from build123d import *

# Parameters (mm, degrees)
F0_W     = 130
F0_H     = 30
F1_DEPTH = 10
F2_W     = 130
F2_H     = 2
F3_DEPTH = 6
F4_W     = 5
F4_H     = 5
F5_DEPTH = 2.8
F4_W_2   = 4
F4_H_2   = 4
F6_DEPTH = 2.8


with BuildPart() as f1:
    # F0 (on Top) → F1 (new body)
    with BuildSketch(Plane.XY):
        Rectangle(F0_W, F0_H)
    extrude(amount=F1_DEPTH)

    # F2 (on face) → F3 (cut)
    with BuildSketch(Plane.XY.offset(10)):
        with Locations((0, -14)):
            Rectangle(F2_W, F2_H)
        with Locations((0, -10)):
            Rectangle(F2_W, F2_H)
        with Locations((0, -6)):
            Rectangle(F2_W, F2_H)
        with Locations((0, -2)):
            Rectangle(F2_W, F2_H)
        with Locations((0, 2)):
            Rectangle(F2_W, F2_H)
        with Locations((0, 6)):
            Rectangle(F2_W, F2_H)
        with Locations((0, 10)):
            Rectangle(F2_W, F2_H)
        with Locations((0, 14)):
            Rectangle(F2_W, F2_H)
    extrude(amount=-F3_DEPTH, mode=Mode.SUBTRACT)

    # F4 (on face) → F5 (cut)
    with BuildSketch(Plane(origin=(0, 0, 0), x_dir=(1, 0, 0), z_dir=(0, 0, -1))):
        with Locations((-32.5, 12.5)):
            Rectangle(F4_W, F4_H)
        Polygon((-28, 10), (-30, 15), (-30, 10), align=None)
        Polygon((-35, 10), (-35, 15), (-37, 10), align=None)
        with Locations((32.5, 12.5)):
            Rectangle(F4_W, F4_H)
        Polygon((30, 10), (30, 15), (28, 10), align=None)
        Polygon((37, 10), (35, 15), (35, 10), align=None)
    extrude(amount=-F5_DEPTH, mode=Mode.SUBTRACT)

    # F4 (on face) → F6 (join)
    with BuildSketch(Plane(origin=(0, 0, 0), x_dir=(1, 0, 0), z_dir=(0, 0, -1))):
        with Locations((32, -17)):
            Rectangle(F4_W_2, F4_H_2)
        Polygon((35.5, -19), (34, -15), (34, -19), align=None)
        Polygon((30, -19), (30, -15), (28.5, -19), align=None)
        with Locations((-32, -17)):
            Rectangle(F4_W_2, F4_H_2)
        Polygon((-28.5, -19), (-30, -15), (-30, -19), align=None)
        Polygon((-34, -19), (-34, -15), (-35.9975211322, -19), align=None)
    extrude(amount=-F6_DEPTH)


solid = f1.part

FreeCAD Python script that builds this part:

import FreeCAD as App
import Part
import Sketcher

V = App.Vector
Q = App.Units.Quantity

doc = App.newDocument("Part")
body = doc.addObject("PartDesign::Body", "Body")

# Sketch on XY plane
sketch1 = body.newObject("Sketcher::SketchObject", "Sketch")
sketch1.AttachmentSupport = (doc.getObject("XY_Plane"), [""])
sketch1.MapMode = "FlatFace"
sketch1.addGeometry(Part.LineSegment(V(-65, 15, 0), V(-65, -15, 0)), False)
sketch1.addGeometry(Part.LineSegment(V(-65, -15, 0), V(65, -15, 0)), False)
sketch1.addGeometry(Part.LineSegment(V(65, -15, 0), V(65, 15, 0)), False)
sketch1.addGeometry(Part.LineSegment(V(65, 15, 0), V(-65, 15, 0)), False)
sketch1.addConstraint(Sketcher.Constraint("Coincident", 0, 2, 1, 1))
sketch1.addConstraint(Sketcher.Constraint("Coincident", 1, 2, 2, 1))
sketch1.addConstraint(Sketcher.Constraint("Coincident", 2, 2, 3, 1))
sketch1.addConstraint(Sketcher.Constraint("Coincident", 3, 2, 0, 1))
sketch1.addConstraint(Sketcher.Constraint("Vertical", 0))
sketch1.addConstraint(Sketcher.Constraint("Horizontal", 1))
sketch1.addConstraint(Sketcher.Constraint("Vertical", 2))
sketch1.addConstraint(Sketcher.Constraint("Horizontal", 3))
sketch1.addConstraint(Sketcher.Constraint("Symmetric", 0, 2, 2, 2, -1, 1))
sketch1.addConstraint(Sketcher.Constraint("DistanceX", 1, 1, 1, 2, Q("130 mm")))
sketch1.addConstraint(Sketcher.Constraint("DistanceY", 0, 2, 0, 1, Q("30 mm")))
pad1 = body.newObject("PartDesign::Pad", "Pad")
pad1.Profile = sketch1
pad1.Length = 10

# Sketch on XY plane
sketch2 = body.newObject("Sketcher::SketchObject", "Sketch001")
sketch2.AttachmentSupport = (doc.getObject("XY_Plane"), [""])
sketch2.MapMode = "FlatFace"
sketch2.AttachmentOffset = App.Placement(V(0, 0, 10), App.Rotation())
sketch2.addGeometry(Part.LineSegment(V(-65, -13, 0), V(-65, -15, 0)), False)
sketch2.addGeometry(Part.LineSegment(V(-65, -15, 0), V(65, -15, 0)), False)
sketch2.addGeometry(Part.LineSegment(V(65, -15, 0), V(65, -13, 0)), False)
sketch2.addGeometry(Part.LineSegment(V(65, -13, 0), V(-65, -13, 0)), False)
sketch2.addGeometry(Part.LineSegment(V(-65, -9, 0), V(-65, -11, 0)), False)
sketch2.addGeometry(Part.LineSegment(V(-65, -11, 0), V(65, -11, 0)), False)
sketch2.addGeometry(Part.LineSegment(V(65, -11, 0), V(65, -9, 0)), False)
sketch2.addGeometry(Part.LineSegment(V(65, -9, 0), V(-65, -9, 0)), False)
sketch2.addGeometry(Part.LineSegment(V(-65, -5, 0), V(-65, -7, 0)), False)
sketch2.addGeometry(Part.LineSegment(V(-65, -7, 0), V(65, -7, 0)), False)
sketch2.addGeometry(Part.LineSegment(V(65, -7, 0), V(65, -5, 0)), False)
sketch2.addGeometry(Part.LineSegment(V(65, -5, 0), V(-65, -5, 0)), False)
sketch2.addGeometry(Part.LineSegment(V(-65, -1, 0), V(-65, -3, 0)), False)
sketch2.addGeometry(Part.LineSegment(V(-65, -3, 0), V(65, -3, 0)), False)
sketch2.addGeometry(Part.LineSegment(V(65, -3, 0), V(65, -1, 0)), False)
sketch2.addGeometry(Part.LineSegment(V(65, -1, 0), V(-65, -1, 0)), False)
sketch2.addGeometry(Part.LineSegment(V(-65, 3, 0), V(-65, 1, 0)), False)
sketch2.addGeometry(Part.LineSegment(V(-65, 1, 0), V(65, 1, 0)), False)
sketch2.addGeometry(Part.LineSegment(V(65, 1, 0), V(65, 3, 0)), False)
sketch2.addGeometry(Part.LineSegment(V(65, 3, 0), V(-65, 3, 0)), False)
sketch2.addGeometry(Part.LineSegment(V(-65, 7, 0), V(-65, 5, 0)), False)
sketch2.addGeometry(Part.LineSegment(V(-65, 5, 0), V(65, 5, 0)), False)
sketch2.addGeometry(Part.LineSegment(V(65, 5, 0), V(65, 7, 0)), False)
sketch2.addGeometry(Part.LineSegment(V(65, 7, 0), V(-65, 7, 0)), False)
sketch2.addGeometry(Part.LineSegment(V(-65, 11, 0), V(-65, 9, 0)), False)
sketch2.addGeometry(Part.LineSegment(V(-65, 9, 0), V(65, 9, 0)), False)
sketch2.addGeometry(Part.LineSegment(V(65, 9, 0), V(65, 11, 0)), False)
sketch2.addGeometry(Part.LineSegment(V(65, 11, 0), V(-65, 11, 0)), False)
sketch2.addGeometry(Part.LineSegment(V(-65, 15, 0), V(-65, 13, 0)), False)
sketch2.addGeometry(Part.LineSegment(V(-65, 13, 0), V(65, 13, 0)), False)
sketch2.addGeometry(Part.LineSegment(V(65, 13, 0), V(65, 15, 0)), False)
sketch2.addGeometry(Part.LineSegment(V(65, 15, 0), V(-65, 15, 0)), False)
sketch2.addConstraint(Sketcher.Constraint("Coincident", 0, 2, 1, 1))
sketch2.addConstraint(Sketcher.Constraint("Coincident", 1, 2, 2, 1))
sketch2.addConstraint(Sketcher.Constraint("Coincident", 2, 2, 3, 1))
sketch2.addConstraint(Sketcher.Constraint("Coincident", 3, 2, 0, 1))
sketch2.addConstraint(Sketcher.Constraint("Coincident", 4, 2, 5, 1))
sketch2.addConstraint(Sketcher.Constraint("Coincident", 5, 2, 6, 1))
sketch2.addConstraint(Sketcher.Constraint("Coincident", 6, 2, 7, 1))
sketch2.addConstraint(Sketcher.Constraint("Coincident", 7, 2, 4, 1))
sketch2.addConstraint(Sketcher.Constraint("Coincident", 8, 2, 9, 1))
sketch2.addConstraint(Sketcher.Constraint("Coincident", 9, 2, 10, 1))
sketch2.addConstraint(Sketcher.Constraint("Coincident", 10, 2, 11, 1))
sketch2.addConstraint(Sketcher.Constraint("Coincident", 11, 2, 8, 1))
sketch2.addConstraint(Sketcher.Constraint("Coincident", 12, 2, 13, 1))
sketch2.addConstraint(Sketcher.Constraint("Coincident", 13, 2, 14, 1))
sketch2.addConstraint(Sketcher.Constraint("Coincident", 14, 2, 15, 1))
sketch2.addConstraint(Sketcher.Constraint("Coincident", 15, 2, 12, 1))
sketch2.addConstraint(Sketcher.Constraint("Coincident", 16, 2, 17, 1))
sketch2.addConstraint(Sketcher.Constraint("Coincident", 17, 2, 18, 1))
sketch2.addConstraint(Sketcher.Constraint("Coincident", 18, 2, 19, 1))
sketch2.addConstraint(Sketcher.Constraint("Coincident", 19, 2, 16, 1))
sketch2.addConstraint(Sketcher.Constraint("Coincident", 20, 2, 21, 1))
sketch2.addConstraint(Sketcher.Constraint("Coincident", 21, 2, 22, 1))
sketch2.addConstraint(Sketcher.Constraint("Coincident", 22, 2, 23, 1))
sketch2.addConstraint(Sketcher.Constraint("Coincident", 23, 2, 20, 1))
sketch2.addConstraint(Sketcher.Constraint("Coincident", 24, 2, 25, 1))
sketch2.addConstraint(Sketcher.Constraint("Coincident", 25, 2, 26, 1))
sketch2.addConstraint(Sketcher.Constraint("Coincident", 26, 2, 27, 1))
sketch2.addConstraint(Sketcher.Constraint("Coincident", 27, 2, 24, 1))
sketch2.addConstraint(Sketcher.Constraint("Coincident", 28, 2, 29, 1))
sketch2.addConstraint(Sketcher.Constraint("Coincident", 29, 2, 30, 1))
sketch2.addConstraint(Sketcher.Constraint("Coincident", 30, 2, 31, 1))
sketch2.addConstraint(Sketcher.Constraint("Coincident", 31, 2, 28, 1))
sketch2.addConstraint(Sketcher.Constraint("Vertical", 0))
sketch2.addConstraint(Sketcher.Constraint("Horizontal", 1))
sketch2.addConstraint(Sketcher.Constraint("Vertical", 2))
sketch2.addConstraint(Sketcher.Constraint("Horizontal", 3))
sketch2.addConstraint(Sketcher.Constraint("Vertical", 4))
sketch2.addConstraint(Sketcher.Constraint("Horizontal", 5))
sketch2.addConstraint(Sketcher.Constraint("Vertical", 6))
sketch2.addConstraint(Sketcher.Constraint("Horizontal", 7))
sketch2.addConstraint(Sketcher.Constraint("Vertical", 8))
sketch2.addConstraint(Sketcher.Constraint("Horizontal", 9))
sketch2.addConstraint(Sketcher.Constraint("Vertical", 10))
sketch2.addConstraint(Sketcher.Constraint("Horizontal", 11))
sketch2.addConstraint(Sketcher.Constraint("Vertical", 12))
sketch2.addConstraint(Sketcher.Constraint("Horizontal", 13))
sketch2.addConstraint(Sketcher.Constraint("Vertical", 14))
sketch2.addConstraint(Sketcher.Constraint("Horizontal", 15))
sketch2.addConstraint(Sketcher.Constraint("Vertical", 16))
sketch2.addConstraint(Sketcher.Constraint("Horizontal", 17))
sketch2.addConstraint(Sketcher.Constraint("Vertical", 18))
sketch2.addConstraint(Sketcher.Constraint("Horizontal", 19))
sketch2.addConstraint(Sketcher.Constraint("Vertical", 20))
sketch2.addConstraint(Sketcher.Constraint("Horizontal", 21))
sketch2.addConstraint(Sketcher.Constraint("Vertical", 22))
sketch2.addConstraint(Sketcher.Constraint("Horizontal", 23))
sketch2.addConstraint(Sketcher.Constraint("Vertical", 24))
sketch2.addConstraint(Sketcher.Constraint("Horizontal", 25))
sketch2.addConstraint(Sketcher.Constraint("Vertical", 26))
sketch2.addConstraint(Sketcher.Constraint("Horizontal", 27))
sketch2.addConstraint(Sketcher.Constraint("Vertical", 28))
sketch2.addConstraint(Sketcher.Constraint("Horizontal", 29))
sketch2.addConstraint(Sketcher.Constraint("Vertical", 30))
sketch2.addConstraint(Sketcher.Constraint("Horizontal", 31))
sketch2.addConstraint(Sketcher.Constraint("Symmetric", 14, 2, 16, 2, -1, 1))
sketch2.addConstraint(Sketcher.Constraint("Symmetric", 12, 2, 18, 2, -1, 1))
sketch2.addConstraint(Sketcher.Constraint("Symmetric", 10, 2, 20, 2, -1, 1))
sketch2.addConstraint(Sketcher.Constraint("Symmetric", 8, 2, 22, 2, -1, 1))
sketch2.addConstraint(Sketcher.Constraint("Symmetric", 6, 2, 24, 2, -1, 1))
sketch2.addConstraint(Sketcher.Constraint("Symmetric", 4, 2, 26, 2, -1, 1))
sketch2.addConstraint(Sketcher.Constraint("Symmetric", 2, 2, 28, 2, -1, 1))
sketch2.addConstraint(Sketcher.Constraint("Symmetric", 0, 2, 30, 2, -1, 1))
sketch2.addConstraint(Sketcher.Constraint("Vertical", 3, 2, 4, 2))
sketch2.addConstraint(Sketcher.Constraint("Vertical", 2, 2, 5, 2))
sketch2.addConstraint(Sketcher.Constraint("Vertical", 7, 2, 8, 2))
sketch2.addConstraint(Sketcher.Constraint("Vertical", 6, 2, 9, 2))
sketch2.addConstraint(Sketcher.Constraint("Vertical", 11, 2, 12, 2))
sketch2.addConstraint(Sketcher.Constraint("Vertical", 10, 2, 13, 2))
sketch2.addConstraint(Sketcher.Constraint("Vertical", 15, 2, 16, 2))
sketch2.addConstraint(Sketcher.Constraint("Equal", 2, 4))
sketch2.addConstraint(Sketcher.Constraint("Equal", 6, 8))
sketch2.addConstraint(Sketcher.Constraint("Equal", 10, 12))
sketch2.addConstraint(Sketcher.Constraint("DistanceX", 1, 1, 1, 2, Q("130 mm")))
sketch2.addConstraint(Sketcher.Constraint("DistanceY", 0, 2, 0, 1, Q("2 mm")))
sketch2.addConstraint(Sketcher.Constraint("DistanceY", 0, 2, -1, 1, Q("15 mm")))
sketch2.addConstraint(Sketcher.Constraint("DistanceY", 4, 2, -1, 1, Q("11 mm")))
sketch2.addConstraint(Sketcher.Constraint("DistanceY", 8, 2, -1, 1, Q("7 mm")))
sketch2.addConstraint(Sketcher.Constraint("DistanceY", 12, 2, -1, 1, Q("3 mm")))
pocket1 = body.newObject("PartDesign::Pocket", "Pocket")
pocket1.Profile = sketch2
pocket1.Length = 6

# Sketch on XY plane
sketch3 = body.newObject("Sketcher::SketchObject", "Sketch002")
sketch3.AttachmentSupport = (doc.getObject("XY_Plane"), [""])
sketch3.MapMode = "FlatFace"
sketch3.addGeometry(Part.LineSegment(V(-28, -10, 0), V(-30, -15, 0)), False)
sketch3.addGeometry(Part.LineSegment(V(-30, -15, 0), V(-35, -15, 0)), False)
sketch3.addGeometry(Part.LineSegment(V(-35, -15, 0), V(-37, -10, 0)), False)
sketch3.addGeometry(Part.LineSegment(V(-37, -10, 0), V(-28, -10, 0)), False)
sketch3.addGeometry(Part.LineSegment(V(35, -15, 0), V(30, -15, 0)), False)
sketch3.addGeometry(Part.LineSegment(V(30, -15, 0), V(28, -10, 0)), False)
sketch3.addGeometry(Part.LineSegment(V(28, -10, 0), V(37, -10, 0)), False)
sketch3.addGeometry(Part.LineSegment(V(37, -10, 0), V(35, -15, 0)), False)
sketch3.addConstraint(Sketcher.Constraint("Coincident", 0, 2, 1, 1))
sketch3.addConstraint(Sketcher.Constraint("Coincident", 1, 2, 2, 1))
sketch3.addConstraint(Sketcher.Constraint("Coincident", 2, 2, 3, 1))
sketch3.addConstraint(Sketcher.Constraint("Coincident", 3, 2, 0, 1))
sketch3.addConstraint(Sketcher.Constraint("Coincident", 4, 2, 5, 1))
sketch3.addConstraint(Sketcher.Constraint("Coincident", 5, 2, 6, 1))
sketch3.addConstraint(Sketcher.Constraint("Coincident", 6, 2, 7, 1))
sketch3.addConstraint(Sketcher.Constraint("Coincident", 7, 2, 4, 1))
sketch3.addConstraint(Sketcher.Constraint("Horizontal", 1))
sketch3.addConstraint(Sketcher.Constraint("Horizontal", 3))
sketch3.addConstraint(Sketcher.Constraint("Horizontal", 4))
sketch3.addConstraint(Sketcher.Constraint("Horizontal", 6))
sketch3.addConstraint(Sketcher.Constraint("Symmetric", 0, 2, 4, 2, -2))
sketch3.addConstraint(Sketcher.Constraint("Symmetric", 3, 2, 5, 2, -2))
sketch3.addConstraint(Sketcher.Constraint("Parallel", 2, 5))
sketch3.addConstraint(Sketcher.Constraint("Parallel", 0, 7))
sketch3.addConstraint(Sketcher.Constraint("Equal", 1, 4))
sketch3.addConstraint(Sketcher.Constraint("DistanceX", 1, 2, 1, 1, Q("5 mm")))
sketch3.addConstraint(Sketcher.Constraint("DistanceX", 3, 1, 3, 2, Q("9 mm")))
sketch3.addConstraint(Sketcher.Constraint("DistanceX", 0, 2, -1, 1, Q("30 mm")))
sketch3.addConstraint(Sketcher.Constraint("DistanceY", 0, 2, -1, 1, Q("15 mm")))
sketch3.addConstraint(Sketcher.Constraint("DistanceY", 2, 2, -1, 1, Q("10 mm")))
pocket2 = body.newObject("PartDesign::Pocket", "Pocket001")
pocket2.Profile = sketch3
pocket2.Length = 2.8
pocket2.Reversed = True

# Sketch on XY plane
sketch4 = body.newObject("Sketcher::SketchObject", "Sketch003")
sketch4.AttachmentSupport = (doc.getObject("XY_Plane"), [""])
sketch4.MapMode = "FlatFace"
sketch4.addGeometry(Part.LineSegment(V(35.5, 19, 0), V(34, 15, 0)), False)
sketch4.addGeometry(Part.LineSegment(V(34, 15, 0), V(30, 15, 0)), False)
sketch4.addGeometry(Part.LineSegment(V(30, 15, 0), V(28.5, 19, 0)), False)
sketch4.addGeometry(Part.LineSegment(V(28.5, 19, 0), V(35.5, 19, 0)), False)
sketch4.addGeometry(Part.LineSegment(V(-28.5, 19, 0), V(-30, 15, 0)), False)
sketch4.addGeometry(Part.LineSegment(V(-30, 15, 0), V(-34, 15, 0)), False)
sketch4.addGeometry(Part.LineSegment(V(-34, 15, 0), V(-35.997521, 19, 0)), False)
sketch4.addGeometry(Part.LineSegment(V(-35.997521, 19, 0), V(-28.5, 19, 0)), False)
sketch4.addConstraint(Sketcher.Constraint("Coincident", 0, 2, 1, 1))
sketch4.addConstraint(Sketcher.Constraint("Coincident", 1, 2, 2, 1))
sketch4.addConstraint(Sketcher.Constraint("Coincident", 2, 2, 3, 1))
sketch4.addConstraint(Sketcher.Constraint("Coincident", 3, 2, 0, 1))
sketch4.addConstraint(Sketcher.Constraint("Coincident", 4, 2, 5, 1))
sketch4.addConstraint(Sketcher.Constraint("Coincident", 5, 2, 6, 1))
sketch4.addConstraint(Sketcher.Constraint("Coincident", 6, 2, 7, 1))
sketch4.addConstraint(Sketcher.Constraint("Coincident", 7, 2, 4, 1))
sketch4.addConstraint(Sketcher.Constraint("Horizontal", 1))
sketch4.addConstraint(Sketcher.Constraint("Horizontal", 3))
sketch4.addConstraint(Sketcher.Constraint("Horizontal", 5))
sketch4.addConstraint(Sketcher.Constraint("Horizontal", 7))
sketch4.addConstraint(Sketcher.Constraint("Symmetric", 1, 2, 4, 2, -2))
sketch4.addConstraint(Sketcher.Constraint("Symmetric", 2, 2, 7, 2, -2))
sketch4.addConstraint(Sketcher.Constraint("Parallel", 0, 4))
sketch4.addConstraint(Sketcher.Constraint("Equal", 1, 5))
sketch4.addConstraint(Sketcher.Constraint("DistanceX", 1, 2, 1, 1, Q("4 mm")))
sketch4.addConstraint(Sketcher.Constraint("DistanceX", 3, 1, 3, 2, Q("7 mm")))
sketch4.addConstraint(Sketcher.Constraint("DistanceX", -1, 1, 0, 2, Q("34 mm")))
sketch4.addConstraint(Sketcher.Constraint("DistanceY", -1, 1, 0, 2, Q("15 mm")))
sketch4.addConstraint(Sketcher.Constraint("DistanceY", -1, 1, 2, 2, Q("19 mm")))
sketch4.addConstraint(Sketcher.Constraint("DistanceX", 7, 1, 7, 2, Q("7.497521 mm")))
pad2 = body.newObject("PartDesign::Pad", "Pad001")
pad2.Profile = sketch4
pad2.Length = 2.8

doc.recompute()
